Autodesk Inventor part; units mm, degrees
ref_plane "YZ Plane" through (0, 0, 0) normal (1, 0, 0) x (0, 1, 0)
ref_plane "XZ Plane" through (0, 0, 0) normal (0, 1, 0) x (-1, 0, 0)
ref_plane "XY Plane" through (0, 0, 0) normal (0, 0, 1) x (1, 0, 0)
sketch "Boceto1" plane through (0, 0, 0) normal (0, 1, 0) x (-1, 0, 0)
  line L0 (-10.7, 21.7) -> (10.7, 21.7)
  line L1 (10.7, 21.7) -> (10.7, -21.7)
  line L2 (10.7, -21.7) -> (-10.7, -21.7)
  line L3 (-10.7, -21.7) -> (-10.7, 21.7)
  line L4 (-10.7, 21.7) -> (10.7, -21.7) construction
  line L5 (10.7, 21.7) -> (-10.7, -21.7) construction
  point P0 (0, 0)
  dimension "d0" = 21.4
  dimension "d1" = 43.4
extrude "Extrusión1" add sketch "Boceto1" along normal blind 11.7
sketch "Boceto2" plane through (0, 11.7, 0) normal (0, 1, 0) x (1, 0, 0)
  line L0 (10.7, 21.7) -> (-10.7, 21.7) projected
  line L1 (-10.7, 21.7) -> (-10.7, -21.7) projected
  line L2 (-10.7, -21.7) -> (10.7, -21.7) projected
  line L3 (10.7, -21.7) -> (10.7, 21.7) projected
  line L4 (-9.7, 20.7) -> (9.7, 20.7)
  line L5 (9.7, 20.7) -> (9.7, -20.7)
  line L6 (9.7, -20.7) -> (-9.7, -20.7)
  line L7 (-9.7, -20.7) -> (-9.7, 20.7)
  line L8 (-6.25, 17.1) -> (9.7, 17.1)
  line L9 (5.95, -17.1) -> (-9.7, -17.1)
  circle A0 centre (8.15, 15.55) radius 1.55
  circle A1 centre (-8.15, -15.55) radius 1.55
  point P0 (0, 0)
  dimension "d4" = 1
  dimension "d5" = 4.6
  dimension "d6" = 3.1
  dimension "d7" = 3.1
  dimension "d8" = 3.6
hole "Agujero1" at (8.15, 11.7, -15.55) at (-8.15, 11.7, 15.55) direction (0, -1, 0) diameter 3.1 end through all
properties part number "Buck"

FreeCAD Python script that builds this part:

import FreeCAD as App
import Part
import Sketcher

V = App.Vector

doc = App.newDocument("Part")
body = doc.addObject("PartDesign::Body", "Body")

# Sketch on XZ plane
sketch1 = doc.addObject("Sketcher::SketchObject", "Sketch")
body.addObject(sketch1)
sketch1.AttachmentSupport = (doc.XZ_Plane, [""])
sketch1.MapMode = "FlatFace"
sketch1.addGeometry(Part.LineSegment(V(-11, 22, 0), V(11, 22, 0)), False)
sketch1.addGeometry(Part.LineSegment(V(11, 22, 0), V(11, -22, 0)), False)
sketch1.addGeometry(Part.LineSegment(V(11, -22, 0), V(-11, -22, 0)), False)
sketch1.addGeometry(Part.LineSegment(V(-11, -22, 0), V(-11, 22, 0)), False)
sketch1.addConstraint(Sketcher.Constraint("Coincident", 0, 2, 1, 1))
sketch1.addConstraint(Sketcher.Constraint("Coincident", 1, 2, 2, 1))
sketch1.addConstraint(Sketcher.Constraint("Coincident", 2, 2, 3, 1))
sketch1.addConstraint(Sketcher.Constraint("Coincident", 3, 2, 0, 1))
sketch1.addConstraint(Sketcher.Constraint("Horizontal", 0))
sketch1.addConstraint(Sketcher.Constraint("Vertical", 1))
sketch1.addConstraint(Sketcher.Constraint("Horizontal", 2))
sketch1.addConstraint(Sketcher.Constraint("Vertical", 3))
sketch1.addConstraint(Sketcher.Constraint("Symmetric", 0, 2, 2, 2, -1, 1))
sketch1.addConstraint(Sketcher.Constraint("DistanceX", 0, 1, 0, 2, 21.4))
sketch1.addConstraint(Sketcher.Constraint("DistanceY", 1, 2, 1, 1, 43.4))
pad1 = doc.addObject("PartDesign::Pad", "Pad")
body.addObject(pad1)
pad1.Profile = sketch1
pad1.Length = 11.7
pad1.Reversed = True

# Sketch on XZ plane
sketch2 = doc.addObject("Sketcher::SketchObject", "Sketch001")
body.addObject(sketch2)
sketch2.AttachmentSupport = (doc.XZ_Plane, [""])
sketch2.MapMode = "FlatFace"
sketch2.AttachmentOffset = App.Placement(V(0, 0, -11.7), App.Rotation())
sketch2.addGeometry(Part.Circle(V(8.2, -15.6, 0), V(0, 0, 1), 1.6), False)
sketch2.addGeometry(Part.Circle(V(-8.2, 15.6, 0), V(0, 0, 1), 1.6), False)
sketch2.addConstraint(Sketcher.Constraint("Equal", 0, 1))
sketch2.addConstraint(Sketcher.Constraint("Symmetric", 0, 3, 1, 3, -1, 1))
sketch2.addConstraint(Sketcher.Constraint("Diameter", 0, 3.1))
sketch2.addConstraint(Sketcher.Constraint("DistanceX", 1, 3, 0, 3, 16.3))
sketch2.addConstraint(Sketcher.Constraint("DistanceY", 0, 3, 1, 3, 31.1))
doc.recompute()
hole = doc.addObject("PartDesign::Hole", "Hole")
body.addObject(hole)
hole.Profile = sketch2
hole.ThreadType = "None"
hole.Diameter = 3.1
hole.DepthType = "ThroughAll"
hole.Reversed = True

doc.recompute()
